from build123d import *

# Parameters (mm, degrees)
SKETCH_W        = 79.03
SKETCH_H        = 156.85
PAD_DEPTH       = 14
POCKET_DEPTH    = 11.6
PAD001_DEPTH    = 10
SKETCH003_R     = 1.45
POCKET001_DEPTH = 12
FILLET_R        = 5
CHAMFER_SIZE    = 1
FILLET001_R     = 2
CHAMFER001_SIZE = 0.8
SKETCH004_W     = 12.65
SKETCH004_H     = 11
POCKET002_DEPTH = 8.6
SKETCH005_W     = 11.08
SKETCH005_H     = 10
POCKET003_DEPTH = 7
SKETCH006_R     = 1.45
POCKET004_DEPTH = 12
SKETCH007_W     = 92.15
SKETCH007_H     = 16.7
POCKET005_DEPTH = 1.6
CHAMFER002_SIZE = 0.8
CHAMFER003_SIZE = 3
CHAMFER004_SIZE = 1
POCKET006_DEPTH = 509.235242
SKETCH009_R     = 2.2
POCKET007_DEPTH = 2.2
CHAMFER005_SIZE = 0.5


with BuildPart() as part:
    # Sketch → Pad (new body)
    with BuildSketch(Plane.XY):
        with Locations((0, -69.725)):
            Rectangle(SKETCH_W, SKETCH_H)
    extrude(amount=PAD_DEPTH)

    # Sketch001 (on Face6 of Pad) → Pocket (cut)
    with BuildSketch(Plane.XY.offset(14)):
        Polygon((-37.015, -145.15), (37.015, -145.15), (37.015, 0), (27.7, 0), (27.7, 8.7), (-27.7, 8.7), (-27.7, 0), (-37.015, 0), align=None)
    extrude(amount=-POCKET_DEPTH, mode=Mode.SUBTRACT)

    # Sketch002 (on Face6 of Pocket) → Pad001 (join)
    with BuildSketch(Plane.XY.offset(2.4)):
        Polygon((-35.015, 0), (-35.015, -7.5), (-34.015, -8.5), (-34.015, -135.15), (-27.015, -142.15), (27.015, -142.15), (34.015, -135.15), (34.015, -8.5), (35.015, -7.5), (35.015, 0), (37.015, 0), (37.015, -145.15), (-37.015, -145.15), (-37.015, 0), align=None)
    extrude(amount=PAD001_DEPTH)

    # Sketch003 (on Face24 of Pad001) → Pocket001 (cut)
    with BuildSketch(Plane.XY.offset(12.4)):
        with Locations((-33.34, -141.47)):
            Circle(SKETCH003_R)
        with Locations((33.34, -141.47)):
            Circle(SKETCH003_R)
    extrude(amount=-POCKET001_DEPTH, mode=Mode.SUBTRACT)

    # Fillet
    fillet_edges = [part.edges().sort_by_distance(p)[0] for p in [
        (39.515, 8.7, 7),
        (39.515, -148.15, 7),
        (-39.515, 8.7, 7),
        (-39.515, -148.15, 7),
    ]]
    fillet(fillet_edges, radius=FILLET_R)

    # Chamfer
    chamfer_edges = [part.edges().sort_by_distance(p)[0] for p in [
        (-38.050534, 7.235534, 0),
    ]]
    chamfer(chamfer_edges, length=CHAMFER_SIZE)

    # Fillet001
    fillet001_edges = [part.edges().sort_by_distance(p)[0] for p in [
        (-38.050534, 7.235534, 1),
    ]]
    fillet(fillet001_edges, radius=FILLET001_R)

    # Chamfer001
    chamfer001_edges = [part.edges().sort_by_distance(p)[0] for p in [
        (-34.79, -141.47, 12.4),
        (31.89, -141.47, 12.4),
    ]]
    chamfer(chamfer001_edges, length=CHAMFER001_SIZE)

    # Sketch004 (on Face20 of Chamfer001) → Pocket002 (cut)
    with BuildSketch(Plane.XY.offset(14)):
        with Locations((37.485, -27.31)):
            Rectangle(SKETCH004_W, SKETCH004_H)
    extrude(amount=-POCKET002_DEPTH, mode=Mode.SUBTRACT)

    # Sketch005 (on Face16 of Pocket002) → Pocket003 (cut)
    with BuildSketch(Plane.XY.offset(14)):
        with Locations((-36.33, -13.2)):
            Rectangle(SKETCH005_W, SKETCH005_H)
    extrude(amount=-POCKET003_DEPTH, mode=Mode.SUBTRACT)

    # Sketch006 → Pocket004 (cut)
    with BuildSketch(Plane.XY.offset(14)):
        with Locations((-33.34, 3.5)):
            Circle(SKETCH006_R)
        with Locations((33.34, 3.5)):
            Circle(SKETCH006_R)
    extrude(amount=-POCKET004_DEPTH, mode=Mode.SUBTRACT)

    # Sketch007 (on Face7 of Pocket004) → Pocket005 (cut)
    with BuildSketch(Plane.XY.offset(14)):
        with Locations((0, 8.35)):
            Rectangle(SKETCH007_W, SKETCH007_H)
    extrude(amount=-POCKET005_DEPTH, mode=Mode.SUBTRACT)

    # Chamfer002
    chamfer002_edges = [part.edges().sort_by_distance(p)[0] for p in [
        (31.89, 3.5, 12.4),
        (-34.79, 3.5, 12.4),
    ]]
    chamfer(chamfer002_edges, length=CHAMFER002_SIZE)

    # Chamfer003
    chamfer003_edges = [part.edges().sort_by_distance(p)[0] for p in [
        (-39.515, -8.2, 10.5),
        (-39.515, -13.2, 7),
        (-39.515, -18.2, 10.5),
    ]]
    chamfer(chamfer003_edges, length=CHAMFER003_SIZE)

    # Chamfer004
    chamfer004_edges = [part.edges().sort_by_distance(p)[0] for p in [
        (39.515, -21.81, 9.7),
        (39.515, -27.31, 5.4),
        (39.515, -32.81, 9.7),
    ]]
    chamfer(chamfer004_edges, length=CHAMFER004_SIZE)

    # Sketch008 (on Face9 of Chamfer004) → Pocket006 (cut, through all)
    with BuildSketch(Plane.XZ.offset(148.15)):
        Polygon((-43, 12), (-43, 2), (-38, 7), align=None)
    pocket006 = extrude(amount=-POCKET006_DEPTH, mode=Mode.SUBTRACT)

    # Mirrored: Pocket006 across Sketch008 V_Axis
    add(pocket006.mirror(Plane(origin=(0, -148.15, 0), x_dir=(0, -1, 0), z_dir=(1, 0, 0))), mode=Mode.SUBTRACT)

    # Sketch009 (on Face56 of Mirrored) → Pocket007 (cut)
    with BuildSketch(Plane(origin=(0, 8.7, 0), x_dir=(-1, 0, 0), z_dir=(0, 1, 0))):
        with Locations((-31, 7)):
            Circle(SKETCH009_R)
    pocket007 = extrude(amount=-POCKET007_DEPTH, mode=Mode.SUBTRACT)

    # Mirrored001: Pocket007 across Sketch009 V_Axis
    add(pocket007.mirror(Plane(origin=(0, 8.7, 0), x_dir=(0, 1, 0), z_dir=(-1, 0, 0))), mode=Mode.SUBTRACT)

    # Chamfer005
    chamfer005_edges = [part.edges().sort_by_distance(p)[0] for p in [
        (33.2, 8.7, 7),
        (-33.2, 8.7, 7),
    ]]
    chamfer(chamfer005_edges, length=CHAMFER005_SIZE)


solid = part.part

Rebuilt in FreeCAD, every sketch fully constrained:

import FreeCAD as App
import Part
import Sketcher

V = App.Vector
Q = App.Units.Quantity


def edges_at(feature, points):
    """Names of the edges that pass closest to the given points."""
    edges = feature.Shape.Edges
    near = lambda p: min(range(len(edges)), key=lambda i: edges[i].distToShape(Part.Vertex(*p))[0])
    return sorted({f"Edge{near(p) + 1}" for p in points})

doc = App.newDocument("Part")
body = doc.addObject("PartDesign::Body", "Body")

sketch1 = doc.addObject("Sketcher::SketchObject", "Sketch")
body.addObject(sketch1)
sketch1.AttachmentSupport = (doc.XY_Plane, [""])
sketch1.MapMode = "FlatFace"
sketch1.addGeometry([
    Part.LineSegment(V(-39.515, 8.7, 0), V(-39.515, -148.15, 0)),
    Part.LineSegment(V(-39.515, -148.15, 0), V(39.515, -148.15, 0)),
    Part.LineSegment(V(39.515, -148.15, 0), V(39.515, 8.7, 0)),
    Part.LineSegment(V(39.515, 8.7, 0), V(-39.515, 8.7, 0)),
], False)
sketch1.addConstraint([
    Sketcher.Constraint("Coincident", 0, 2, 1, 1),
    Sketcher.Constraint("Coincident", 1, 2, 2, 1),
    Sketcher.Constraint("Coincident", 2, 2, 3, 1),
    Sketcher.Constraint("Coincident", 3, 2, 0, 1),
    Sketcher.Constraint("Vertical", 0),
    Sketcher.Constraint("Horizontal", 1),
    Sketcher.Constraint("Vertical", 2),
    Sketcher.Constraint("Horizontal", 3),
    Sketcher.Constraint("DistanceX", 1, 1, 1, 2, Q("79.03 mm")),
    Sketcher.Constraint("DistanceY", 0, 2, 0, 1, Q("156.85 mm")),
    Sketcher.Constraint("DistanceY", -1, 1, 2, 2, Q("8.7 mm")),
    Sketcher.Constraint("DistanceX", 0, 2, -1, 1, Q("39.515 mm")),
])
pad1 = doc.addObject("PartDesign::Pad", "Pad")
body.addObject(pad1)
pad1.Profile = sketch1
pad1.Length = 14

sketch2 = doc.addObject("Sketcher::SketchObject", "Sketch001")
body.addObject(sketch2)
sketch2.AttachmentSupport = (doc.XY_Plane, [""])
sketch2.MapMode = "FlatFace"
sketch2.AttachmentOffset = App.Placement(V(0, 0, 14), App.Rotation())
sketch2.addGeometry([
    Part.LineSegment(V(-37.015, -145.15, 0), V(37.015, -145.15, 0)),
    Part.LineSegment(V(37.015, -145.15, 0), V(37.015, 0, 0)),
    Part.LineSegment(V(37.015, 0, 0), V(27.7, 0, 0)),
    Part.LineSegment(V(27.7, 0, 0), V(27.7, 8.7, 0)),
    Part.LineSegment(V(27.7, 8.7, 0), V(-27.7, 8.7, 0)),
    Part.LineSegment(V(-27.7, 8.7, 0), V(-27.7, 0, 0)),
    Part.LineSegment(V(-27.7, 0, 0), V(-37.015, 0, 0)),
    Part.LineSegment(V(-37.015, 0, 0), V(-37.015, -145.15, 0)),
], False)
sketch2.addConstraint([
    Sketcher.Constraint("Coincident", 0, 2, 1, 1),
    Sketcher.Constraint("Coincident", 1, 2, 2, 1),
    Sketcher.Constraint("Coincident", 2, 2, 3, 1),
    Sketcher.Constraint("Coincident", 3, 2, 4, 1),
    Sketcher.Constraint("Coincident", 4, 2, 5, 1),
    Sketcher.Constraint("Coincident", 5, 2, 6, 1),
    Sketcher.Constraint("Coincident", 6, 2, 7, 1),
    Sketcher.Constraint("Coincident", 7, 2, 0, 1),
    Sketcher.Constraint("Horizontal", 0),
    Sketcher.Constraint("Vertical", 1),
    Sketcher.Constraint("Horizontal", 2),
    Sketcher.Constraint("Vertical", 3),
    Sketcher.Constraint("Horizontal", 4),
    Sketcher.Constraint("Vertical", 5),
    Sketcher.Constraint("Horizontal", 6),
    Sketcher.Constraint("Vertical", 7),
    Sketcher.Constraint("Symmetric", 2, 2, 5, 2, -1, 1),
    Sketcher.Constraint("Symmetric", 1, 2, 6, 2, -2),
    Sketcher.Constraint("DistanceX", 4, 2, 4, 1, Q("55.4 mm")),
    Sketcher.Constraint("DistanceY", 3, 1, 3, 2, Q("8.7 mm")),
    Sketcher.Constraint("DistanceX", 0, 1, 0, 2, Q("74.03 mm")),
    Sketcher.Constraint("DistanceY", 1, 1, 1, 2, Q("145.15 mm")),
])
pocket1 = doc.addObject("PartDesign::Pocket", "Pocket")
body.addObject(pocket1)
pocket1.Profile = sketch2
pocket1.Length = 11.6

sketch3 = doc.addObject("Sketcher::SketchObject", "Sketch002")
body.addObject(sketch3)
sketch3.AttachmentSupport = (doc.XY_Plane, [""])
sketch3.MapMode = "FlatFace"
sketch3.AttachmentOffset = App.Placement(V(0, 0, 2.4), App.Rotation())
sketch3.addGeometry([
    Part.LineSegment(V(-35.015, -7.5, 0), V(-35.015, 0, 0)),
    Part.LineSegment(V(-35.015, 0, 0), V(-37.015, 0, 0)),
    Part.LineSegment(V(-37.015, 0, 0), V(-37.015, -145.15, 0)),
    Part.LineSegment(V(-37.015, -145.15, 0), V(37.015, -145.15, 0)),
    Part.LineSegment(V(37.015, -145.15, 0), V(37.015, 0, 0)),
    Part.LineSegment(V(37.015, 0, 0), V(35.015, 0, 0)),
    Part.LineSegment(V(35.015, 0, 0), V(35.015, -7.5, 0)),
    Part.LineSegment(V(35.015, -7.5, 0), V(34.015, -8.5, 0)),
    Part.LineSegment(V(34.015, -8.5, 0), V(34.015, -135.15, 0)),
    Part.LineSegment(V(34.015, -135.15, 0), V(27.015, -142.15, 0)),
    Part.LineSegment(V(27.015, -142.15, 0), V(-27.015, -142.15, 0)),
    Part.LineSegment(V(-27.015, -142.15, 0), V(-34.015, -135.15, 0)),
    Part.LineSegment(V(-34.015, -135.15, 0), V(-34.015, -8.5, 0)),
    Part.LineSegment(V(-34.015, -8.5, 0), V(-35.015, -7.5, 0)),
], False)
sketch3.addConstraint([
    Sketcher.Constraint("Coincident", 0, 2, 1, 1),
    Sketcher.Constraint("Coincident", 1, 2, 2, 1),
    Sketcher.Constraint("Coincident", 2, 2, 3, 1),
    Sketcher.Constraint("Coincident", 3, 2, 4, 1),
    Sketcher.Constraint("Coincident", 4, 2, 5, 1),
    Sketcher.Constraint("Coincident", 5, 2, 6, 1),
    Sketcher.Constraint("Coincident", 6, 2, 7, 1),
    Sketcher.Constraint("Coincident", 7, 2, 8, 1),
    Sketcher.Constraint("Coincident", 8, 2, 9, 1),
    Sketcher.Constraint("Coincident", 9, 2, 10, 1),
    Sketcher.Constraint("Coincident", 10, 2, 11, 1),
    Sketcher.Constraint("Coincident", 11, 2, 12, 1),
    Sketcher.Constraint("Coincident", 12, 2, 13, 1),
    Sketcher.Constraint("Coincident", 13, 2, 0, 1),
    Sketcher.Constraint("Vertical", 0),
    Sketcher.Constraint("Horizontal", 1),
    Sketcher.Constraint("Vertical", 2),
    Sketcher.Constraint("Horizontal", 3),
    Sketcher.Constraint("Vertical", 4),
    Sketcher.Constraint("Horizontal", 5),
    Sketcher.Constraint("Vertical", 6),
    Sketcher.Constraint("Vertical", 8),
    Sketcher.Constraint("Horizontal", 10),
    Sketcher.Constraint("Vertical", 12),
    Sketcher.Constraint("Symmetric", 1, 2, 4, 2, -1, 1),
    Sketcher.Constraint("Symmetric", 0, 2, 5, 2, -2),
    Sketcher.Constraint("Symmetric", 8, 2, 11, 2, -2),
    Sketcher.Constraint("Parallel", 7, 9),
    Sketcher.Constraint("Perpendicular", 9, 11),
    Sketcher.Constraint("Parallel", 11, 13),
    Sketcher.Constraint("Horizontal", 7, 2, 12, 2),
    Sketcher.Constraint("Horizontal", 6, 2, 13, 2),
    Sketcher.Constraint("DistanceX", 1, 2, 1, 1, Q("2 mm")),
    Sketcher.Constraint("DistanceY", 0, 1, 0, 2, Q("7.5 mm")),
    Sketcher.Constraint("DistanceX", 7, 2, 6, 2, Q("1 mm")),
    Sketcher.Constraint("DistanceY", 3, 2, 8, 2, Q("10 mm")),
    Sketcher.Constraint("DistanceX", 9, 2, 8, 2, Q("7 mm")),
    Sketcher.Constraint("DistanceX", 3, 1, 3, 2, Q("74.03 mm")),
    Sketcher.Constraint("DistanceY", 2, 2, 2, 1, Q("145.15 mm")),
])
pad2 = doc.addObject("PartDesign::Pad", "Pad001")
body.addObject(pad2)
pad2.Profile = sketch3
pad2.Length = 10

sketch4 = doc.addObject("Sketcher::SketchObject", "Sketch003")
body.addObject(sketch4)
sketch4.AttachmentSupport = (doc.XY_Plane, [""])
sketch4.MapMode = "FlatFace"
sketch4.AttachmentOffset = App.Placement(V(0, 0, 12.4), App.Rotation())
sketch4.addGeometry([
    Part.Circle(V(-33.34, -141.47, 0), V(0, 0, 1), 1.45),
    Part.Circle(V(33.34, -141.47, 0), V(0, 0, 1), 1.45),
], False)
sketch4.addConstraint([
    Sketcher.Constraint("Equal", 0, 1),
    Sketcher.Constraint("Symmetric", 0, 3, 1, 3, -2),
    Sketcher.Constraint("Diameter", 0, Q("2.9 mm")),
    Sketcher.Constraint("DistanceX", 0, 3, -1, 1, Q("33.34 mm")),
    Sketcher.Constraint("DistanceY", 0, 3, -1, 1, Q("141.47 mm")),
])
pocket2 = doc.addObject("PartDesign::Pocket", "Pocket001")
body.addObject(pocket2)
pocket2.Profile = sketch4
pocket2.Length = 12
doc.recompute()

fillet = doc.addObject("PartDesign::Fillet", "Fillet")
body.addObject(fillet)
fillet.Base = (pocket2, edges_at(pocket2, [
    (39.515, 8.7, 7),
    (39.515, -148.15, 7),
    (-39.515, 8.7, 7),
    (-39.515, -148.15, 7),
]))
fillet.Radius = 5
doc.recompute()

chamfer = doc.addObject("PartDesign::Chamfer", "Chamfer")
body.addObject(chamfer)
chamfer.Base = (fillet, edges_at(fillet, [(-38.051, 7.236, 0)]))
chamfer.Size = 1
doc.recompute()

fillet2 = doc.addObject("PartDesign::Fillet", "Fillet001")
body.addObject(fillet2)
fillet2.Base = (chamfer, edges_at(chamfer, [(-38.051, 7.236, 1)]))
fillet2.Radius = 2
doc.recompute()

chamfer2 = doc.addObject("PartDesign::Chamfer", "Chamfer001")
body.addObject(chamfer2)
chamfer2.Base = (fillet2, edges_at(fillet2, [(-34.79, -141.47, 12.4), (31.89, -141.47, 12.4)]))
chamfer2.Size = 0.8

sketch5 = doc.addObject("Sketcher::SketchObject", "Sketch004")
body.addObject(sketch5)
sketch5.AttachmentSupport = (doc.XY_Plane, [""])
sketch5.MapMode = "FlatFace"
sketch5.AttachmentOffset = App.Placement(V(0, 0, 14), App.Rotation())
sketch5.addGeometry([
    Part.LineSegment(V(31.16, -21.81, 0), V(31.16, -32.81, 0)),
    Part.LineSegment(V(31.16, -32.81, 0), V(43.81, -32.81, 0)),
    Part.LineSegment(V(43.81, -32.81, 0), V(43.81, -21.81, 0)),
    Part.LineSegment(V(43.81, -21.81, 0), V(31.16, -21.81, 0)),
], False)
sketch5.addConstraint([
    Sketcher.Constraint("Coincident", 0, 2, 1, 1),
    Sketcher.Constraint("Coincident", 1, 2, 2, 1),
    Sketcher.Constraint("Coincident", 2, 2, 3, 1),
    Sketcher.Constraint("Coincident", 3, 2, 0, 1),
    Sketcher.Constraint("Vertical", 0),
    Sketcher.Constraint("Horizontal", 1),
    Sketcher.Constraint("Vertical", 2),
    Sketcher.Constraint("Horizontal", 3),
    Sketcher.Constraint("DistanceY", 0, 2, 0, 1, Q("11 mm")),
    Sketcher.Constraint("DistanceX", 1, 1, 1, 2, Q("12.65 mm")),
    Sketcher.Constraint("DistanceX", -1, 1, 0, 2, Q("31.16 mm")),
    Sketcher.Constraint("DistanceY", 0, 2, -1, 1, Q("32.81 mm")),
])
pocket3 = doc.addObject("PartDesign::Pocket", "Pocket002")
body.addObject(pocket3)
pocket3.Profile = sketch5
pocket3.Length = 8.6

sketch6 = doc.addObject("Sketcher::SketchObject", "Sketch005")
body.addObject(sketch6)
sketch6.AttachmentSupport = (doc.XY_Plane, [""])
sketch6.MapMode = "FlatFace"
sketch6.AttachmentOffset = App.Placement(V(0, 0, 14), App.Rotation())
sketch6.addGeometry([
    Part.LineSegment(V(-41.87, -8.2, 0), V(-41.87, -18.2, 0)),
    Part.LineSegment(V(-41.87, -18.2, 0), V(-30.79, -18.2, 0)),
    Part.LineSegment(V(-30.79, -18.2, 0), V(-30.79, -8.2, 0)),
    Part.LineSegment(V(-30.79, -8.2, 0), V(-41.87, -8.2, 0)),
], False)
sketch6.addConstraint([
    Sketcher.Constraint("Coincident", 0, 2, 1, 1),
    Sketcher.Constraint("Coincident", 1, 2, 2, 1),
    Sketcher.Constraint("Coincident", 2, 2, 3, 1),
    Sketcher.Constraint("Coincident", 3, 2, 0, 1),
    Sketcher.Constraint("Vertical", 0),
    Sketcher.Constraint("Horizontal", 1),
    Sketcher.Constraint("Vertical", 2),
    Sketcher.Constraint("Horizontal", 3),
    Sketcher.Constraint("DistanceY", 0, 2, 0, 1, Q("10 mm")),
    Sketcher.Constraint("DistanceX", 1, 1, 1, 2, Q("11.08 mm")),
    Sketcher.Constraint("DistanceY", 0, 2, -1, 1, Q("18.2 mm")),
    Sketcher.Constraint("DistanceX", 0, 2, -1, 1, Q("41.87 mm")),
])
pocket4 = doc.addObject("PartDesign::Pocket", "Pocket003")
body.addObject(pocket4)
pocket4.Profile = sketch6
pocket4.Length = 7

sketch7 = doc.addObject("Sketcher::SketchObject", "Sketch006")
body.addObject(sketch7)
sketch7.AttachmentSupport = (doc.XY_Plane, [""])
sketch7.MapMode = "FlatFace"
sketch7.AttachmentOffset = App.Placement(V(0, 0, 14), App.Rotation())
sketch7.addGeometry([
    Part.Circle(V(-33.34, 3.5, 0), V(0, 0, 1), 1.45),
    Part.Circle(V(33.34, 3.5, 0), V(0, 0, 1), 1.45),
], False)
sketch7.addConstraint([
    Sketcher.Constraint("Equal", 0, 1),
    Sketcher.Constraint("Symmetric", 0, 3, 1, 3, -2),
    Sketcher.Constraint("Diameter", 0, Q("2.9 mm")),
    Sketcher.Constraint("DistanceY", -1, 1, 0, 3, Q("3.5 mm")),
    Sketcher.Constraint("DistanceX", 0, 3, -1, 1, Q("33.34 mm")),
])
pocket5 = doc.addObject("PartDesign::Pocket", "Pocket004")
body.addObject(pocket5)
pocket5.Profile = sketch7
pocket5.Length = 12

sketch8 = doc.addObject("Sketcher::SketchObject", "Sketch007")
body.addObject(sketch8)
sketch8.AttachmentSupport = (doc.XY_Plane, [""])
sketch8.MapMode = "FlatFace"
sketch8.AttachmentOffset = App.Placement(V(0, 0, 14), App.Rotation())
sketch8.addGeometry([
    Part.LineSegment(V(-46.075, 16.7, 0), V(-46.075, 0, 0)),
    Part.LineSegment(V(-46.075, 0, 0), V(46.075, 0, 0)),
    Part.LineSegment(V(46.075, 0, 0), V(46.075, 16.7, 0)),
    Part.LineSegment(V(46.075, 16.7, 0), V(-46.075, 16.7, 0)),
], False)
sketch8.addConstraint([
    Sketcher.Constraint("Coincident", 0, 2, 1, 1),
    Sketcher.Constraint("Coincident", 1, 2, 2, 1),
    Sketcher.Constraint("Coincident", 2, 2, 3, 1),
    Sketcher.Constraint("Coincident", 3, 2, 0, 1),
    Sketcher.Constraint("Vertical", 0),
    Sketcher.Constraint("Horizontal", 1),
    Sketcher.Constraint("Vertical", 2),
    Sketcher.Constraint("Horizontal", 3),
    Sketcher.Constraint("Symmetric", 0, 2, 1, 2, -1, 1),
    Sketcher.Constraint("DistanceY", 0, 2, 0, 1, Q("16.7 mm")),
    Sketcher.Constraint("DistanceX", 1, 1, 1, 2, Q("92.15 mm")),
])
pocket6 = doc.addObject("PartDesign::Pocket", "Pocket005")
body.addObject(pocket6)
pocket6.Profile = sketch8
pocket6.Length = 1.6
doc.recompute()

chamfer3 = doc.addObject("PartDesign::Chamfer", "Chamfer002")
body.addObject(chamfer3)
chamfer3.Base = (pocket6, edges_at(pocket6, [(31.89, 3.5, 12.4), (-34.79, 3.5, 12.4)]))
chamfer3.Size = 0.8
doc.recompute()

chamfer4 = doc.addObject("PartDesign::Chamfer", "Chamfer003")
body.addObject(chamfer4)
chamfer4.Base = (chamfer3, edges_at(chamfer3, [(-39.515, -8.2, 10.5), (-39.515, -13.2, 7), (-39.515, -18.2, 10.5)]))
chamfer4.Size = 3
doc.recompute()

chamfer5 = doc.addObject("PartDesign::Chamfer", "Chamfer004")
body.addObject(chamfer5)
chamfer5.Base = (chamfer4, edges_at(chamfer4, [(39.515, -21.81, 9.7), (39.515, -27.31, 5.4), (39.515, -32.81, 9.7)]))
chamfer5.Size = 1

sketch9 = doc.addObject("Sketcher::SketchObject", "Sketch008")
body.addObject(sketch9)
sketch9.AttachmentSupport = (doc.XZ_Plane, [""])
sketch9.MapMode = "FlatFace"
sketch9.AttachmentOffset = App.Placement(V(0, 0, 148.15), App.Rotation())
sketch9.addGeometry([
    Part.LineSegment(V(-43, 12, 0), V(-43, 2, 0)),
    Part.LineSegment(V(-43, 2, 0), V(-38, 7, 0)),
    Part.LineSegment(V(-38, 7, 0), V(-43, 12, 0)),
], False)
sketch9.addConstraint([
    Sketcher.Constraint("Coincident", 0, 2, 1, 1),
    Sketcher.Constraint("Coincident", 1, 2, 2, 1),
    Sketcher.Constraint("Coincident", 2, 2, 0, 1),
    Sketcher.Constraint("Vertical", 0),
    Sketcher.Constraint("Perpendicular", 1, 2),
    Sketcher.Constraint("Equal", 1, 2),
    Sketcher.Constraint("DistanceY", 0, 2, 0, 1, Q("10 mm")),
    Sketcher.Constraint("DistanceX", 0, 2, -1, 1, Q("43 mm")),
    Sketcher.Constraint("DistanceY", -1, 1, 0, 2, Q("2 mm")),
])
pocket7 = doc.addObject("PartDesign::Pocket", "Pocket006")
body.addObject(pocket7)
pocket7.Profile = sketch9
pocket7.Type = "ThroughAll"
doc.recompute()

mirrored = doc.addObject("PartDesign::Mirrored", "Mirrored")
body.addObject(mirrored)
mirrored.Originals = [pocket7]
mirrored.MirrorPlane = (doc.YZ_Plane, [""])
body.Tip = mirrored

sketch10 = doc.addObject("Sketcher::SketchObject", "Sketch009")
body.addObject(sketch10)
sketch10.AttachmentSupport = (doc.XZ_Plane, [""])
sketch10.MapMode = "FlatFace"
sketch10.AttachmentOffset = App.Placement(V(0, 0, -8.7), App.Rotation())
sketch10.addGeometry(Part.Circle(V(31, 7, 0), V(0, 0, 1), 2.2), False)
sketch10.addConstraint([
    Sketcher.Constraint("Diameter", 0, Q("4.4 mm")),
    Sketcher.Constraint("DistanceX", -1, 1, 0, 3, Q("31 mm")),
    Sketcher.Constraint("DistanceY", -1, 1, 0, 3, Q("7 mm")),
])
pocket8 = doc.addObject("PartDesign::Pocket", "Pocket007")
body.addObject(pocket8)
pocket8.Profile = sketch10
pocket8.Length = 2.2
pocket8.Reversed = True
doc.recompute()

mirrored2 = doc.addObject("PartDesign::Mirrored", "Mirrored001")
body.addObject(mirrored2)
mirrored2.Originals = [pocket8]
mirrored2.MirrorPlane = (doc.YZ_Plane, [""])
body.Tip = mirrored2
doc.recompute()

chamfer6 = doc.addObject("PartDesign::Chamfer", "Chamfer005")
body.addObject(chamfer6)
chamfer6.Base = (mirrored2, edges_at(mirrored2, [(33.2, 8.7, 7), (-33.2, 8.7, 7)]))
chamfer6.Size = 0.5

doc.recompute()
